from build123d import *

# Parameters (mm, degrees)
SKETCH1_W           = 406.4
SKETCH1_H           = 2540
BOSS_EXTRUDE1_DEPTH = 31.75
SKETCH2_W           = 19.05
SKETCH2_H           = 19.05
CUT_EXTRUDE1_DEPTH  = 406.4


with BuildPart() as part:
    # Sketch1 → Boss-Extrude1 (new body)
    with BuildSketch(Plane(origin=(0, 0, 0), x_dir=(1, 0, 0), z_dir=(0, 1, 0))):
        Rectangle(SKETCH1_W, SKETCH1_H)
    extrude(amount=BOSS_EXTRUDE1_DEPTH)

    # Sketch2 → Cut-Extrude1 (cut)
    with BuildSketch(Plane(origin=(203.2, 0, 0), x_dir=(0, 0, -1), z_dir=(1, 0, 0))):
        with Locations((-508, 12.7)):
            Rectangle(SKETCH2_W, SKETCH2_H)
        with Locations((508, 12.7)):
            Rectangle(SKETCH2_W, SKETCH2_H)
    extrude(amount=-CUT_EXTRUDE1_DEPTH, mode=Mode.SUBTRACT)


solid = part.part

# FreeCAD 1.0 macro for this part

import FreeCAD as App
import Part
import Sketcher
Q = App.Units.Quantity

doc = App.newDocument("Part")
body = doc.addObject("PartDesign::Body", "Body")

# Sketch on XZ plane
sketch1 = body.newObject("Sketcher::SketchObject", "Sketch")
sketch1.AttachmentSupport = (doc.getObject("XZ_Plane"), [""])
sketch1.MapMode = "FlatFace"
sketch1.addGeometry([
    Part.LineSegment(App.Vector(-203.2, -1270, 0), App.Vector(-203.2, 1270, 0)),
    Part.LineSegment(App.Vector(-203.2, 1270, 0), App.Vector(203.2, 1270, 0)),
    Part.LineSegment(App.Vector(203.2, 1270, 0), App.Vector(203.2, -1270, 0)),
    Part.LineSegment(App.Vector(203.2, -1270, 0), App.Vector(-203.2, -1270, 0)),
], False)
sketch1.addConstraint([
    Sketcher.Constraint("Coincident", 0, 2, 1, 1),
    Sketcher.Constraint("Coincident", 1, 2, 2, 1),
    Sketcher.Constraint("Coincident", 2, 2, 3, 1),
    Sketcher.Constraint("Coincident", 3, 2, 0, 1),
    Sketcher.Constraint("Vertical", 0),
    Sketcher.Constraint("Horizontal", 1),
    Sketcher.Constraint("Vertical", 2),
    Sketcher.Constraint("Horizontal", 3),
    Sketcher.Constraint("Symmetric", 0, 2, 2, 2, -1, 1),
    Sketcher.Constraint("DistanceX", 1, 1, 1, 2, Q("16 in")),
    Sketcher.Constraint("DistanceY", 0, 1, 0, 2, Q("100 in")),
])
pad1 = body.newObject("PartDesign::Pad", "Pad")
pad1.Profile = sketch1
pad1.Length = Q("1.25 in")
pad1.Reversed = True

# Sketch on YZ plane
sketch2 = body.newObject("Sketcher::SketchObject", "Sketch001")
sketch2.AttachmentSupport = (doc.getObject("YZ_Plane"), [""])
sketch2.MapMode = "FlatFace"
sketch2.AttachmentOffset = App.Placement(App.Vector(0, 0, 8 * 25.4), App.Rotation())
sketch2.addGeometry([
    Part.LineSegment(App.Vector(22.225, 517.525, 0), App.Vector(3.175, 517.525, 0)),  # 0
    Part.LineSegment(App.Vector(3.175, 517.525, 0), App.Vector(3.175, 498.475, 0)),  # 1
    Part.LineSegment(App.Vector(3.175, 498.475, 0), App.Vector(22.225, 498.475, 0)),  # 2
    Part.LineSegment(App.Vector(22.225, 498.475, 0), App.Vector(22.225, 517.525, 0)),  # 3
    Part.LineSegment(App.Vector(22.225, -498.475, 0), App.Vector(3.175, -498.475, 0)),  # 4
    Part.LineSegment(App.Vector(3.175, -498.475, 0), App.Vector(3.175, -517.525, 0)),  # 5
    Part.LineSegment(App.Vector(3.175, -517.525, 0), App.Vector(22.225, -517.525, 0)),  # 6
    Part.LineSegment(App.Vector(22.225, -517.525, 0), App.Vector(22.225, -498.475, 0)),  # 7
], False)
sketch2.addConstraint([
    Sketcher.Constraint("Coincident", 0, 2, 1, 1),
    Sketcher.Constraint("Coincident", 1, 2, 2, 1),
    Sketcher.Constraint("Coincident", 2, 2, 3, 1),
    Sketcher.Constraint("Coincident", 3, 2, 0, 1),
    Sketcher.Constraint("Coincident", 4, 2, 5, 1),
    Sketcher.Constraint("Coincident", 5, 2, 6, 1),
    Sketcher.Constraint("Coincident", 6, 2, 7, 1),
    Sketcher.Constraint("Coincident", 7, 2, 4, 1),
    Sketcher.Constraint("Horizontal", 0),
    Sketcher.Constraint("Vertical", 1),
    Sketcher.Constraint("Horizontal", 2),
    Sketcher.Constraint("Vertical", 3),
    Sketcher.Constraint("Horizontal", 4),
    Sketcher.Constraint("Vertical", 5),
    Sketcher.Constraint("Horizontal", 6),
    Sketcher.Constraint("Vertical", 7),
    Sketcher.Constraint("Symmetric", 1, 2, 4, 2, -1),
    Sketcher.Constraint("Symmetric", 3, 2, 6, 2, -1),
    Sketcher.Constraint("Equal", 6, 1),
    Sketcher.Constraint("DistanceY", 4, 2, 0, 2, Q("40 in")),
    Sketcher.Constraint("DistanceX", 0, 2, 0, 1, Q("0.75 in")),
    Sketcher.Constraint("DistanceX", -1, 1, 0, 2, Q("0.125 in")),
])
pocket1 = body.newObject("PartDesign::Pocket", "Pocket")
pocket1.Profile = sketch2
pocket1.Length = Q("16 in")

doc.recompute()
